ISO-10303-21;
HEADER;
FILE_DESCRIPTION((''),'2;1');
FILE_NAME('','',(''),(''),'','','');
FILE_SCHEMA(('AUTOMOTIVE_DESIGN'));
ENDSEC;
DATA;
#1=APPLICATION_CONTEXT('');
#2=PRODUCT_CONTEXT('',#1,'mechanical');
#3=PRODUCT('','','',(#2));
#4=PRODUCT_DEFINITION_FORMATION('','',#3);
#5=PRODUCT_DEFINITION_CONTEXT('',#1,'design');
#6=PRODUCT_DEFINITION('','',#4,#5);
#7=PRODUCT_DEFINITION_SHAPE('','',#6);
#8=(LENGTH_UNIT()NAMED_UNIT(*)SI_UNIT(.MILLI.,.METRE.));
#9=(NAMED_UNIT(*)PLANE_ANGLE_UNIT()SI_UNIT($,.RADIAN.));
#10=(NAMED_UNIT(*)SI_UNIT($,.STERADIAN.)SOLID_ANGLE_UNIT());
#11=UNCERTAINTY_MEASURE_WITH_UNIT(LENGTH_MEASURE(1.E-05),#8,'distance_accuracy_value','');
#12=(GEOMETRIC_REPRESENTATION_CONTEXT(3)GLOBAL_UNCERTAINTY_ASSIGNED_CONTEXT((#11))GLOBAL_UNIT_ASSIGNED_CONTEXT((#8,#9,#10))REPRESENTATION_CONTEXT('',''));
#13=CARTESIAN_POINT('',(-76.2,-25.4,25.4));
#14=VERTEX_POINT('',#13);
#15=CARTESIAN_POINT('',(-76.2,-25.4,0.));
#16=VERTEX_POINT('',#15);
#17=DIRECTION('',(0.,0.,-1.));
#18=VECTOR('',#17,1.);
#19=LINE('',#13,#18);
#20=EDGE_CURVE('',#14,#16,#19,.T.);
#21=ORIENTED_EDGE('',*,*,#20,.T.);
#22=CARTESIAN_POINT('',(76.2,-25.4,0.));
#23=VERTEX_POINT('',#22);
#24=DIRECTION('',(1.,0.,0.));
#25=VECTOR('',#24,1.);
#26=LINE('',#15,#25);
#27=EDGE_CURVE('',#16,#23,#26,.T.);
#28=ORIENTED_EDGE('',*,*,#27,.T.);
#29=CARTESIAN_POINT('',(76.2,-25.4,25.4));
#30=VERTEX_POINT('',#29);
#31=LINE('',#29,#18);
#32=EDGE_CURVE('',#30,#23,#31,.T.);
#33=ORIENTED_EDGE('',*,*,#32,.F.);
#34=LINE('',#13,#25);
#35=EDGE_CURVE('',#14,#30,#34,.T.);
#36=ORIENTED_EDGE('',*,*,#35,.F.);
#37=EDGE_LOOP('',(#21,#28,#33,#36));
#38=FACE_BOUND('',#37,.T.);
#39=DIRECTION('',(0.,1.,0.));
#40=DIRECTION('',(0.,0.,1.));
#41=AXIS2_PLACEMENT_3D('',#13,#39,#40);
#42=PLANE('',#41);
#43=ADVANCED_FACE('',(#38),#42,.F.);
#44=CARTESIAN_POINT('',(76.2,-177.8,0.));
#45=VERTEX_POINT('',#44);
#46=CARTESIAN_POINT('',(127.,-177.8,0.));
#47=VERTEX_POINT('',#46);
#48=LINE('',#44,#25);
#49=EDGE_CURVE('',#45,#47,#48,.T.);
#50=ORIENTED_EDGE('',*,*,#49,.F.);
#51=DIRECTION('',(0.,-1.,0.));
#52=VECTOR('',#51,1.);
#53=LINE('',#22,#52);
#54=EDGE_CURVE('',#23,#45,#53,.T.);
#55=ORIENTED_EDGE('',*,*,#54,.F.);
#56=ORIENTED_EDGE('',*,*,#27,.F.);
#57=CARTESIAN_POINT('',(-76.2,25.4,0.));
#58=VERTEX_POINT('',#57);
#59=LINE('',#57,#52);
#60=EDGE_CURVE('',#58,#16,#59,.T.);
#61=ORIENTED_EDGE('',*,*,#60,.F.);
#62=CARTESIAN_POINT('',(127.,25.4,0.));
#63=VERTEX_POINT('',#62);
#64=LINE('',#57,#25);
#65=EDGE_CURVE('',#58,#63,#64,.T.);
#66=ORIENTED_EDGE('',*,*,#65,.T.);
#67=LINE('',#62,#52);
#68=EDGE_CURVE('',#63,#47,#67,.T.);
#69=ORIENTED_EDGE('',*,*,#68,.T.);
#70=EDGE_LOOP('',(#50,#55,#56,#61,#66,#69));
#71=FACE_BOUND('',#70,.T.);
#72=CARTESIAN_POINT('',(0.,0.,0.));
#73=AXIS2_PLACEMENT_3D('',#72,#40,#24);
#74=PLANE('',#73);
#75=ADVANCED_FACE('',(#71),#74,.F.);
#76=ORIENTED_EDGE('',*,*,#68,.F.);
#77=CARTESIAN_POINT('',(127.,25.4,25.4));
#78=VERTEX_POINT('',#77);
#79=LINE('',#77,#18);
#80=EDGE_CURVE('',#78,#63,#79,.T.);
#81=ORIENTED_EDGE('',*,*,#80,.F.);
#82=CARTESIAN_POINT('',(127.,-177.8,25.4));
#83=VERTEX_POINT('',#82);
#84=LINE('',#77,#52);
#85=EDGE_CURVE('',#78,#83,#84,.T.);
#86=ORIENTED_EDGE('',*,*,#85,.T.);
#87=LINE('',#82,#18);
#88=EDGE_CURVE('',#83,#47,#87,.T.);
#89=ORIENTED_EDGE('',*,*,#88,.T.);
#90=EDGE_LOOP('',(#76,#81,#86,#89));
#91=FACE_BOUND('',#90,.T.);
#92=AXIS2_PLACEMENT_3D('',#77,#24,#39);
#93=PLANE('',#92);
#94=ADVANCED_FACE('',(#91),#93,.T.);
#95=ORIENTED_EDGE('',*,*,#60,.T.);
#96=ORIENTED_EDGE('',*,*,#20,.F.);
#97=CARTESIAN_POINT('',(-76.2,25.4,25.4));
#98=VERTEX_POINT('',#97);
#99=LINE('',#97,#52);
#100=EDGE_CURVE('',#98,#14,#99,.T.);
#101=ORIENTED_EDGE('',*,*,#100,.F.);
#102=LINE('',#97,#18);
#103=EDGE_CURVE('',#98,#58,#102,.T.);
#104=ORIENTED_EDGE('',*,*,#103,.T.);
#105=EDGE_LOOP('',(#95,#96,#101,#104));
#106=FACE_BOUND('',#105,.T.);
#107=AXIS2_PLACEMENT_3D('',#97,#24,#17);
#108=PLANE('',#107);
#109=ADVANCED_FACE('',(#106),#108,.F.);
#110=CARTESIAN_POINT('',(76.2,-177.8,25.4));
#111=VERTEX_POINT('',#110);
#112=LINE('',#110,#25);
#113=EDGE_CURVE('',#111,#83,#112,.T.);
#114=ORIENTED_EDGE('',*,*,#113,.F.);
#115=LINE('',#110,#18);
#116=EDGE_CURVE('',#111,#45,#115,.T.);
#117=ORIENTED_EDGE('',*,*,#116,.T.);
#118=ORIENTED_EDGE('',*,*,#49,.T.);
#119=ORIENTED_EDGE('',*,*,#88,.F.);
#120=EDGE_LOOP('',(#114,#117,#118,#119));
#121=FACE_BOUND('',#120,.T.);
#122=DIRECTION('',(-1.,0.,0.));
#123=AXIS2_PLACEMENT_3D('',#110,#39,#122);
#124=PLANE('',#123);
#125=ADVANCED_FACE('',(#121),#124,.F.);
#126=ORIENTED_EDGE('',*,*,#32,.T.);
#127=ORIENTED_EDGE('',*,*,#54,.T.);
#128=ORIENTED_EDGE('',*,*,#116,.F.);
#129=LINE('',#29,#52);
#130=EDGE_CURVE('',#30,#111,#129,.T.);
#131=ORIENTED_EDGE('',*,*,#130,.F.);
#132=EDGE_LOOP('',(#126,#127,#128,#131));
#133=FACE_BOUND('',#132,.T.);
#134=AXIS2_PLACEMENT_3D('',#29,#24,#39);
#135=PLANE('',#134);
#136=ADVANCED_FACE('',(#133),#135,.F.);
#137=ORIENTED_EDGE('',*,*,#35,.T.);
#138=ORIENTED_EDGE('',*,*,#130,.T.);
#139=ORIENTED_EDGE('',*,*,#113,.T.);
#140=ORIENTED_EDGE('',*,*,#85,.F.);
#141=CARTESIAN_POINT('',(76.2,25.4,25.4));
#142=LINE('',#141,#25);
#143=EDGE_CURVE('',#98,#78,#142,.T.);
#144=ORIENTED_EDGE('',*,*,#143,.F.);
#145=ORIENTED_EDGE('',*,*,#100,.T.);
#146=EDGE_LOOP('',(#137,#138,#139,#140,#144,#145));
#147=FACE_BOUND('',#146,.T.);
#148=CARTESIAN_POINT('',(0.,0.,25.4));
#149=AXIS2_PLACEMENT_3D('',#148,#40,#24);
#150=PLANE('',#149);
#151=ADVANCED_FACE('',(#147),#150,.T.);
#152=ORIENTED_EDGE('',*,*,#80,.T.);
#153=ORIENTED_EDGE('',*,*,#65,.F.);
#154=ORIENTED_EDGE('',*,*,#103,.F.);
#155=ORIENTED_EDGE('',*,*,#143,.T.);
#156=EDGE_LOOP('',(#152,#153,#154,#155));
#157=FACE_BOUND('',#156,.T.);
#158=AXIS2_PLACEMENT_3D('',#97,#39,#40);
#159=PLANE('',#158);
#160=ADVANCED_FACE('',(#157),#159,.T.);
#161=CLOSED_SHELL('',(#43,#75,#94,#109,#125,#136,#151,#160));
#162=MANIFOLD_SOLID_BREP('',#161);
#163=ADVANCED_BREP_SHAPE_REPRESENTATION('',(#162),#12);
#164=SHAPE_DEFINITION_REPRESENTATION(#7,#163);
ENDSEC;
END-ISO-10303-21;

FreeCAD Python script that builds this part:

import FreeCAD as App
import Part
import Sketcher

V = App.Vector
Q = App.Units.Quantity

doc = App.newDocument("Part")
body = doc.addObject("PartDesign::Body", "Body")

sketch1 = doc.addObject("Sketcher::SketchObject", "Sketch")
body.addObject(sketch1)
sketch1.AttachmentSupport = (doc.XY_Plane, [""])
sketch1.MapMode = "FlatFace"
sketch1.addGeometry([
    Part.LineSegment(V(127, 25, 0), V(-76, 25, 0)),
    Part.LineSegment(V(-76, 25, 0), V(-76, -25, 0)),
    Part.LineSegment(V(-76, -25, 0), V(76, -25, 0)),
    Part.LineSegment(V(76, -25, 0), V(76, -178, 0)),
    Part.LineSegment(V(76, -178, 0), V(127, -178, 0)),
    Part.LineSegment(V(127, -178, 0), V(127, 25, 0)),
], False)
sketch1.addConstraint([
    Sketcher.Constraint("Coincident", 0, 2, 1, 1),
    Sketcher.Constraint("Coincident", 1, 2, 2, 1),
    Sketcher.Constraint("Coincident", 2, 2, 3, 1),
    Sketcher.Constraint("Coincident", 3, 2, 4, 1),
    Sketcher.Constraint("Coincident", 4, 2, 5, 1),
    Sketcher.Constraint("Coincident", 5, 2, 0, 1),
    Sketcher.Constraint("Horizontal", 0),
    Sketcher.Constraint("Vertical", 1),
    Sketcher.Constraint("Horizontal", 2),
    Sketcher.Constraint("Vertical", 3),
    Sketcher.Constraint("Horizontal", 4),
    Sketcher.Constraint("Vertical", 5),
    Sketcher.Constraint("Symmetric", 0, 2, 2, 2, -1, 1),
    Sketcher.Constraint("Equal", 4, 1),
    Sketcher.Constraint("Equal", 2, 3),
    Sketcher.Constraint("DistanceX", 0, 2, 0, 1, Q("8 in")),
    Sketcher.Constraint("DistanceX", 2, 1, 2, 2, Q("6 in")),
])
pad1 = doc.addObject("PartDesign::Pad", "Pad")
body.addObject(pad1)
pad1.Profile = sketch1
pad1.Length = Q("1 in")

doc.recompute()
